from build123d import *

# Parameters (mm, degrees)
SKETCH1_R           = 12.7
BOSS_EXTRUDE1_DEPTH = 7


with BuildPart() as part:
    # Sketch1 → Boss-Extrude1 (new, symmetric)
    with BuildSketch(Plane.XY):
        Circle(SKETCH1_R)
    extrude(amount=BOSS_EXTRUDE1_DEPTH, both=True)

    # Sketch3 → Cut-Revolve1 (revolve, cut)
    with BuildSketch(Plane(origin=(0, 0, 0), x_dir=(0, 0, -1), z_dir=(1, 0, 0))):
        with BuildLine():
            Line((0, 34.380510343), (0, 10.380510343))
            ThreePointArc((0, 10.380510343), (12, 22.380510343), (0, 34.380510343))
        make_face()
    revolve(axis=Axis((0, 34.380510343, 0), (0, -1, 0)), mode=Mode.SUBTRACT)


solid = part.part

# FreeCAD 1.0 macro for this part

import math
import FreeCAD as App
import Part
import Sketcher

V = App.Vector
Q = App.Units.Quantity

doc = App.newDocument("Part")
params = doc.addObject("Spreadsheet::Sheet", "Params")
for row, (alias, value) in enumerate([
    ("sketch1_diameter", "25.4 mm"),
    ("pad1_length", "14 mm"),
    ("sketch2_radius", "12 mm"),
    ("groove_angle", "360 deg"),
], start=1):
    params.set(f"A{row}", alias)
    params.set(f"B{row}", "=" + value)
    params.setAlias(f"B{row}", alias)

body = doc.addObject("PartDesign::Body", "Body")

sketch1 = body.newObject("Sketcher::SketchObject", "Sketch")
sketch1.AttachmentSupport = (doc.getObject("XY_Plane"), [""])
sketch1.MapMode = "FlatFace"
sketch1.addGeometry(Part.Circle(V(0, 0, 0), V(0, 0, 1), 12.7), False)
sketch1.addConstraint([
    Sketcher.Constraint("Coincident", 0, 3, -1, 1),
    Sketcher.Constraint("Diameter", 0, Q("25.4 mm")),
])
sketch1.setExpression("Constraints[1]", "Params.sketch1_diameter")
pad1 = body.newObject("PartDesign::Pad", "Pad")
pad1.Profile = sketch1
pad1.setExpression("Length", "Params.pad1_length")
pad1.Midplane = True

sketch2 = body.newObject("Sketcher::SketchObject", "Sketch001")
sketch2.AttachmentSupport = (doc.getObject("YZ_Plane"), [""])
sketch2.MapMode = "FlatFace"
sketch2.addGeometry([
    Part.LineSegment(V(34.38051, 0, 0), V(10.38051, 0, 0)),
    Part.ArcOfCircle(Part.Circle(V(22.38051, 0, 0), V(0, 0, 1), 12), math.radians(180), math.radians(360)),
], False)
sketch2.addConstraint([
    Sketcher.Constraint("Coincident", 0, 1, 1, 2),
    Sketcher.Constraint("Coincident", 1, 1, 0, 2),
    Sketcher.Constraint("Horizontal", 0),
    Sketcher.Constraint("PointOnObject", 1, 3, -1),
    Sketcher.Constraint("PointOnObject", 0, 1, -1),
    Sketcher.Constraint("Radius", 1, Q("12 mm")),
    Sketcher.Constraint("DistanceX", -1, 1, 1, 3, Q("22.38051 mm")),
])
sketch2.setExpression("Constraints[5]", "Params.sketch2_radius")
groove = body.newObject("PartDesign::Groove", "Groove")
groove.Profile = sketch2
groove.ReferenceAxis = (sketch2, ["H_Axis"])
groove.setExpression("Angle", "Params.groove_angle")

doc.recompute()
